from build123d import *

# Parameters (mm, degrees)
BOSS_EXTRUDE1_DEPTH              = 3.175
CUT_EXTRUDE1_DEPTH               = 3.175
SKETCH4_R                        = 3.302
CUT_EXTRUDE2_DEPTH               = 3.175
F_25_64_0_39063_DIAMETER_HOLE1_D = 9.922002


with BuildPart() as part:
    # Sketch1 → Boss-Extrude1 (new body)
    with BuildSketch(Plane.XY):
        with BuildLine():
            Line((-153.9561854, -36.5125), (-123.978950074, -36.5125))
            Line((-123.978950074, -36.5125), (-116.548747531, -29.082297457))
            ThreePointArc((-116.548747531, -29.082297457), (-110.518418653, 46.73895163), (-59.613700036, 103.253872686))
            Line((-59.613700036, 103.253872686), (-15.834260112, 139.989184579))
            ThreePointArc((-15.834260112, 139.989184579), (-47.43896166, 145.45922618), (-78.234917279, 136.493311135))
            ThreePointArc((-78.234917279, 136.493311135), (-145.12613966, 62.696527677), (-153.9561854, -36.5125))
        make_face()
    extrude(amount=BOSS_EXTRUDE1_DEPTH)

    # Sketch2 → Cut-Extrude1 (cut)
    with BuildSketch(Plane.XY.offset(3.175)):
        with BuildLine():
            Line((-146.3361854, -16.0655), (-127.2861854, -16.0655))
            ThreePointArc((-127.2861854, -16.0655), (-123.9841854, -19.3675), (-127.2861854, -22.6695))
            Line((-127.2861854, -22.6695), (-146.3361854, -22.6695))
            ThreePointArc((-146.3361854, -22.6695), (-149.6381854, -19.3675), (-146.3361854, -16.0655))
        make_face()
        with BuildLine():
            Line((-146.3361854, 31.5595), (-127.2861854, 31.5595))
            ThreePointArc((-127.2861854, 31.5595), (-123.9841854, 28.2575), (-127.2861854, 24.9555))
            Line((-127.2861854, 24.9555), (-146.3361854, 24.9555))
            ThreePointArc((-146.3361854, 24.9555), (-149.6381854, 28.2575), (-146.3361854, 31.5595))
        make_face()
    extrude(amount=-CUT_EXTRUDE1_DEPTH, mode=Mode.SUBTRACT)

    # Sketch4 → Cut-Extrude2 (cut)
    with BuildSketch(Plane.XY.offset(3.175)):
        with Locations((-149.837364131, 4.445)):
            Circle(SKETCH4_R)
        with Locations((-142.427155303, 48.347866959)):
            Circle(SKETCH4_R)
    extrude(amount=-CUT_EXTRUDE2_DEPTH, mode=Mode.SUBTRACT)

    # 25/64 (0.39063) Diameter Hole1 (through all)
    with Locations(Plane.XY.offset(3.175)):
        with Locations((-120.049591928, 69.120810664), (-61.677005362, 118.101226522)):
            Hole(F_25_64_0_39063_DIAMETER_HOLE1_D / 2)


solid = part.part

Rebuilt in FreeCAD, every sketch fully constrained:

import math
import FreeCAD as App
import Part
import Sketcher

V = App.Vector
Q = App.Units.Quantity

doc = App.newDocument("Part")
params = doc.addObject("Spreadsheet::Sheet", "Params")
for row, (alias, value) in enumerate([
    ("sketch1_length", "2.25 in"),
    ("pad1_length", "0.125 in"),
    ("sketch2_radius", "0.13 in"),
    ("sketch2_width", "0.75 in"),
    ("pocket1_length", "0.125 in"),
    ("sketch3_diameter", "0.26 in"),
    ("pocket2_length", "0.125 in"),
    ("hole_diameter", "9.922002 mm"),
], start=1):
    params.set(f"A{row}", alias)
    params.set(f"B{row}", "=" + value)
    params.setAlias(f"B{row}", alias)

body = doc.addObject("PartDesign::Body", "Body")

sketch1 = body.newObject("Sketcher::SketchObject", "Sketch")
sketch1.AttachmentSupport = (doc.getObject("XY_Plane"), [""])
sketch1.MapMode = "FlatFace"
sketch1.addGeometry(Part.LineSegment(V(-153.956185, -36.5125, 0), V(-123.97895, -36.5125, 0)), False)
sketch1.addGeometry(Part.LineSegment(V(-123.97895, -36.5125, 0), V(-116.548748, -29.082297, 0)), False)
sketch1.addGeometry(Part.ArcOfCircle(Part.Circle(V(-1.733804, -0.0635, 0), V(0, 0, 1), 118.425343), math.radians(119.258184), math.radians(194.184123)), False)
sketch1.addGeometry(Part.LineSegment(V(-59.6137, 103.253873, 0), V(-15.83426, 139.989185, 0)), False)
sketch1.addGeometry(Part.ArcOfCircle(Part.Circle(V(-43.458972, 74.417193, 0), V(0, 0, 1), 71.153432), math.radians(67.154878), math.radians(119.258184)), False)
sketch1.addGeometry(Part.ArcOfCircle(Part.Circle(V(-1.733804, -0.0635, 0), V(0, 0, 1), 156.525343), math.radians(119.258184), math.radians(193.465702)), False)
sketch1.addConstraint(Sketcher.Constraint("Coincident", 0, 2, 1, 1))
sketch1.addConstraint(Sketcher.Constraint("Coincident", 1, 2, 2, 2))
sketch1.addConstraint(Sketcher.Constraint("Coincident", 2, 1, 3, 1))
sketch1.addConstraint(Sketcher.Constraint("Coincident", 3, 2, 4, 1))
sketch1.addConstraint(Sketcher.Constraint("Tangent", 4, 2, 5, 1))
sketch1.addConstraint(Sketcher.Constraint("Coincident", 5, 2, 0, 1))
sketch1.addConstraint(Sketcher.Constraint("Horizontal", 0))
sketch1.addConstraint(Sketcher.Constraint("Coincident", 5, 3, 2, 3))
sketch1.addConstraint(Sketcher.Constraint("Angle", 1, Q("45 deg")))
sketch1.addConstraint(Sketcher.Constraint("Angle", 3, Q("40 deg")))
sketch1.addConstraint(Sketcher.Constraint("Distance", 3, Q("2.25 in")))
sketch1.addConstraint(Sketcher.Constraint("DistanceY", 0, 2, -1, 1, Q("1.4375 in")))
sketch1.addConstraint(Sketcher.Constraint("Radius", 4, 71.153432))
sketch1.addConstraint(Sketcher.Constraint("DistanceY", 0, 2, 2, 3, Q("1.435 in")))
sketch1.addConstraint(Sketcher.Constraint("Radius", 2, 118.425343))
sketch1.addConstraint(Sketcher.Constraint("Radius", 5, 156.525343))
sketch1.addConstraint(Sketcher.Constraint("DistanceX", 2, 1, -1, 1, 59.6137))
sketch1.addConstraint(Sketcher.Constraint("DistanceX", 0, 1, 0, 2, 29.977235))
sketch1.addConstraint(Sketcher.Constraint("DistanceX", 0, 2, -1, 1, 123.97895))
sketch1.setExpression("Constraints[10]", "Params.sketch1_length")
pad1 = body.newObject("PartDesign::Pad", "Pad")
pad1.Profile = sketch1
pad1.setExpression("Length", "Params.pad1_length")

sketch2 = body.newObject("Sketcher::SketchObject", "Sketch001")
sketch2.AttachmentSupport = (doc.getObject("XY_Plane"), [""])
sketch2.MapMode = "FlatFace"
sketch2.AttachmentOffset = App.Placement(V(0, 0, 0.125 * 25.4), App.Rotation())
sketch2.addGeometry(Part.LineSegment(V(-127.286185, -16.0655, 0), V(-146.336185, -16.0655, 0)), False)
sketch2.addGeometry(Part.ArcOfCircle(Part.Circle(V(-146.336185, -19.3675, 0), V(0, 0, 1), 3.302), math.radians(90), math.radians(270)), False)
sketch2.addGeometry(Part.LineSegment(V(-146.336185, -22.6695, 0), V(-127.286185, -22.6695, 0)), False)
sketch2.addGeometry(Part.ArcOfCircle(Part.Circle(V(-127.286185, -19.3675, 0), V(0, 0, 1), 3.302), math.radians(-90), math.radians(90)), False)
sketch2.addGeometry(Part.LineSegment(V(-127.286185, 31.5595, 0), V(-146.336185, 31.5595, 0)), False)
sketch2.addGeometry(Part.ArcOfCircle(Part.Circle(V(-146.336185, 28.2575, 0), V(0, 0, 1), 3.302), math.radians(90), math.radians(270)), False)
sketch2.addGeometry(Part.LineSegment(V(-146.336185, 24.9555, 0), V(-127.286185, 24.9555, 0)), False)
sketch2.addGeometry(Part.ArcOfCircle(Part.Circle(V(-127.286185, 28.2575, 0), V(0, 0, 1), 3.302), math.radians(-90), math.radians(90)), False)
sketch2.addConstraint(Sketcher.Constraint("Tangent", 0, 2, 1, 1))
sketch2.addConstraint(Sketcher.Constraint("Tangent", 1, 2, 2, 1))
sketch2.addConstraint(Sketcher.Constraint("Tangent", 2, 2, 3, 1))
sketch2.addConstraint(Sketcher.Constraint("Tangent", 3, 2, 0, 1))
sketch2.addConstraint(Sketcher.Constraint("Tangent", 4, 2, 5, 1))
sketch2.addConstraint(Sketcher.Constraint("Tangent", 5, 2, 6, 1))
sketch2.addConstraint(Sketcher.Constraint("Tangent", 6, 2, 7, 1))
sketch2.addConstraint(Sketcher.Constraint("Tangent", 7, 2, 4, 1))
sketch2.addConstraint(Sketcher.Constraint("Horizontal", 0))
sketch2.addConstraint(Sketcher.Constraint("Horizontal", 2))
sketch2.addConstraint(Sketcher.Constraint("Horizontal", 4))
sketch2.addConstraint(Sketcher.Constraint("Horizontal", 6))
sketch2.addConstraint(Sketcher.Constraint("Equal", 3, 5))
sketch2.addConstraint(Sketcher.Constraint("Vertical", 1, 3, 5, 3))
sketch2.addConstraint(Sketcher.Constraint("Vertical", 3, 3, 7, 3))
sketch2.addConstraint(Sketcher.Constraint("Radius", 1, Q("0.13 in")))
sketch2.addConstraint(Sketcher.Constraint("DistanceX", 0, 2, 0, 1, Q("0.75 in")))
sketch2.addConstraint(Sketcher.Constraint("DistanceY", 1, 3, 5, 3, Q("1.875 in")))
sketch2.addConstraint(Sketcher.Constraint("DistanceY", 1, 3, -1, 1, Q("0.7625 in")))
sketch2.addConstraint(Sketcher.Constraint("DistanceX", 1, 3, -1, 1, 146.336185))
sketch2.setExpression("Constraints[15]", "Params.sketch2_radius")
sketch2.setExpression("Constraints[16]", "Params.sketch2_width")
pocket1 = body.newObject("PartDesign::Pocket", "Pocket")
pocket1.Profile = sketch2
pocket1.setExpression("Length", "Params.pocket1_length")

sketch3 = body.newObject("Sketcher::SketchObject", "Sketch002")
sketch3.AttachmentSupport = (doc.getObject("XY_Plane"), [""])
sketch3.MapMode = "FlatFace"
sketch3.AttachmentOffset = App.Placement(V(0, 0, 0.125 * 25.4), App.Rotation())
sketch3.addGeometry(Part.Circle(V(-149.837364, 4.445, 0), V(0, 0, 1), 3.302), False)
sketch3.addGeometry(Part.Circle(V(-142.427155, 48.347867, 0), V(0, 0, 1), 3.302), False)
sketch3.addConstraint(Sketcher.Constraint("Equal", 0, 1))
sketch3.addConstraint(Sketcher.Constraint("Diameter", 0, Q("0.26 in")))
sketch3.addConstraint(Sketcher.Constraint("DistanceY", -1, 1, 0, 3, Q("0.175 in")))
sketch3.addConstraint(Sketcher.Constraint("DistanceX", 0, 3, 1, 3, 7.410209))
sketch3.addConstraint(Sketcher.Constraint("DistanceX", 0, 3, -1, 1, 149.837364))
sketch3.addConstraint(Sketcher.Constraint("DistanceY", -1, 1, 1, 3, 48.347867))
sketch3.setExpression("Constraints[1]", "Params.sketch3_diameter")
pocket2 = body.newObject("PartDesign::Pocket", "Pocket001")
pocket2.Profile = sketch3
pocket2.setExpression("Length", "Params.pocket2_length")

sketch4 = body.newObject("Sketcher::SketchObject", "Sketch003")
sketch4.AttachmentSupport = (doc.getObject("XY_Plane"), [""])
sketch4.MapMode = "FlatFace"
sketch4.AttachmentOffset = App.Placement(V(0, 0, 0.125 * 25.4), App.Rotation())
sketch4.addGeometry(Part.Circle(V(-120.049592, 69.120811, 0), V(0, 0, 1), 4.961001), False)
sketch4.addGeometry(Part.Circle(V(-61.677005, 118.101227, 0), V(0, 0, 1), 4.961001), False)
sketch4.addConstraint(Sketcher.Constraint("Equal", 0, 1))
sketch4.addConstraint(Sketcher.Constraint("Diameter", 0, 9.922002))
sketch4.addConstraint(Sketcher.Constraint("DistanceX", 0, 3, -1, 1, 120.049592))
sketch4.addConstraint(Sketcher.Constraint("DistanceY", -1, 1, 0, 3, 69.120811))
sketch4.addConstraint(Sketcher.Constraint("DistanceX", 1, 3, -1, 1, 61.677005))
sketch4.addConstraint(Sketcher.Constraint("DistanceY", -1, 1, 1, 3, 118.101227))
doc.recompute()
hole = body.newObject("PartDesign::Hole", "Hole")
hole.Profile = sketch4
hole.ThreadType = "None"
hole.setExpression("Diameter", "Params.hole_diameter")
hole.DepthType = "ThroughAll"

doc.recompute()
